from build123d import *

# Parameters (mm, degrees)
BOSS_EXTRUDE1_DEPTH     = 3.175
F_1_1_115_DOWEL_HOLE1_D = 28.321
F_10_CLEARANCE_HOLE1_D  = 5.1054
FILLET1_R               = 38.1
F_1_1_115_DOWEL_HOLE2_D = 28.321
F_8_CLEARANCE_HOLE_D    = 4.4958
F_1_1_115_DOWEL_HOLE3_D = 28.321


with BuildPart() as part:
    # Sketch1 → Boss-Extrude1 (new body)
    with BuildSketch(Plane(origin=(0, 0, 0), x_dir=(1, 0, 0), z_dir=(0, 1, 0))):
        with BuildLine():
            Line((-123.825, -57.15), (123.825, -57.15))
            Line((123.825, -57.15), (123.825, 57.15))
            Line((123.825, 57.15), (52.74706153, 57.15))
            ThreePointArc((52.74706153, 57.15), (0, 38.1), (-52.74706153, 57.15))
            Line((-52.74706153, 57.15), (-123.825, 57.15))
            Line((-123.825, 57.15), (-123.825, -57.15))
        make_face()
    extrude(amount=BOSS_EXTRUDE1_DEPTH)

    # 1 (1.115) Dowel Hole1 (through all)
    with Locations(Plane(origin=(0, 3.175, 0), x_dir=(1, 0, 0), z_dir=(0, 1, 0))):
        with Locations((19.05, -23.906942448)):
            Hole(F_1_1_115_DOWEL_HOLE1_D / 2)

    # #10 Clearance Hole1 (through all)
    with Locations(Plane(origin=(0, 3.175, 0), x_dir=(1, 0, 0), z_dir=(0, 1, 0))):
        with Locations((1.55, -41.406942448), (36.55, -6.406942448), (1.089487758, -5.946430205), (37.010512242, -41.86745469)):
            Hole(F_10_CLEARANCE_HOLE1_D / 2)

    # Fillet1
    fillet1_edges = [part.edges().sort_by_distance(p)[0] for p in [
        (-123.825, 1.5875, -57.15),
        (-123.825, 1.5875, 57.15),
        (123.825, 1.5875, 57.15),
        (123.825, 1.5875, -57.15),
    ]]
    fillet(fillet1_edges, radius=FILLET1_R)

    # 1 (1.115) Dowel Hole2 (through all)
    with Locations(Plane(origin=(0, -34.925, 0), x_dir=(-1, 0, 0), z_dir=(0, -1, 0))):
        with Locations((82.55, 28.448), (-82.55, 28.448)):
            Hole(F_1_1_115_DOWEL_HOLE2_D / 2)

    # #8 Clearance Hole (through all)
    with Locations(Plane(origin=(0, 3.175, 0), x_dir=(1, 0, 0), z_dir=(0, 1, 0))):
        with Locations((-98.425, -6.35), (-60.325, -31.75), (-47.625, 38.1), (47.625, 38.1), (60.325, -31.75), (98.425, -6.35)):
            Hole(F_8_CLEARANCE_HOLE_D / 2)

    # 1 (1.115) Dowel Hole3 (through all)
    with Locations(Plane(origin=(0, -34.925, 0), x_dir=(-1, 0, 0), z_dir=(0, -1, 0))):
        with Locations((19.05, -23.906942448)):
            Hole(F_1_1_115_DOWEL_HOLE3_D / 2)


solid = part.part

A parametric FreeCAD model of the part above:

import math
import FreeCAD as App
import Part
import Sketcher

V = App.Vector
Q = App.Units.Quantity


def edges_at(feature, points):
    """Names of the edges that pass closest to the given points."""
    edges = feature.Shape.Edges
    near = lambda p: min(range(len(edges)), key=lambda i: edges[i].distToShape(Part.Vertex(*p))[0])
    return sorted({f"Edge{near(p) + 1}" for p in points})

doc = App.newDocument("Part")
body = doc.addObject("PartDesign::Body", "Body")

# Sketch on XZ plane
sketch1 = doc.addObject("Sketcher::SketchObject", "Sketch")
body.addObject(sketch1)
sketch1.AttachmentSupport = (doc.XZ_Plane, [""])
sketch1.MapMode = "FlatFace"
sketch1.addGeometry([
    Part.LineSegment(V(-124, 57, 0), V(124, 57, 0)),  # 0
    Part.LineSegment(V(124, 57, 0), V(124, -57, 0)),  # 1
    Part.LineSegment(V(124, -57, 0), V(53, -57, 0)),  # 2
    Part.ArcOfCircle(Part.Circle(V(0, -121, 0), V(0, 0, 1), 83), math.radians(50), math.radians(130)),  # 3
    Part.LineSegment(V(-53, -57, 0), V(-124, -57, 0)),  # 4
    Part.LineSegment(V(-124, -57, 0), V(-124, 57, 0)),  # 5
], False)
sketch1.addConstraint([
    Sketcher.Constraint("Coincident", 0, 2, 1, 1),
    Sketcher.Constraint("Coincident", 1, 2, 2, 1),
    Sketcher.Constraint("Coincident", 2, 2, 3, 1),
    Sketcher.Constraint("Coincident", 3, 2, 4, 1),
    Sketcher.Constraint("Coincident", 4, 2, 5, 1),
    Sketcher.Constraint("Coincident", 5, 2, 0, 1),
    Sketcher.Constraint("Horizontal", 0),
    Sketcher.Constraint("Vertical", 1),
    Sketcher.Constraint("Horizontal", 2),
    Sketcher.Constraint("Horizontal", 4),
    Sketcher.Constraint("Vertical", 5),
    Sketcher.Constraint("Symmetric", 0, 2, 4, 2, -1, 1),
    Sketcher.Constraint("Symmetric", 2, 2, 3, 2, -2),
    Sketcher.Constraint("Radius", 3, Q("3.25 in")),
    Sketcher.Constraint("DistanceY", 1, 2, 1, 1, Q("4.5 in")),
    Sketcher.Constraint("DistanceY", 3, 3, 0, 2, Q("7 in")),
    Sketcher.Constraint("DistanceX", 0, 1, 0, 2, Q("9.75 in")),
])
pad1 = doc.addObject("PartDesign::Pad", "Pad")
body.addObject(pad1)
pad1.Profile = sketch1
pad1.Length = Q("0.125 in")
pad1.Reversed = True

# Sketch on XZ plane
sketch2 = doc.addObject("Sketcher::SketchObject", "Sketch001")
body.addObject(sketch2)
sketch2.AttachmentSupport = (doc.XZ_Plane, [""])
sketch2.MapMode = "FlatFace"
sketch2.AttachmentOffset = App.Placement(V(0, 0, -0.125 * 25.4), App.Rotation())
sketch2.addGeometry(Part.Circle(V(19, 24, 0), V(0, 0, 1), 14), False)
sketch2.addConstraint([
    Sketcher.Constraint("Diameter", 0, Q("1.115 in")),
    Sketcher.Constraint("DistanceX", -1, 1, 0, 3, Q("0.75 in")),
    Sketcher.Constraint("DistanceY", -1, 1, 0, 3, 23.906942),
])
doc.recompute()
hole = doc.addObject("PartDesign::Hole", "Hole")
body.addObject(hole)
hole.Profile = sketch2
hole.ThreadType = "None"
hole.Diameter = Q("1.115 in")
hole.DepthType = "ThroughAll"
hole.Reversed = True

# Sketch on XZ plane
sketch3 = doc.addObject("Sketcher::SketchObject", "Sketch002")
body.addObject(sketch3)
sketch3.AttachmentSupport = (doc.XZ_Plane, [""])
sketch3.MapMode = "FlatFace"
sketch3.AttachmentOffset = App.Placement(V(0, 0, -0.125 * 25.4), App.Rotation())
sketch3.addGeometry([
    Part.Circle(V(1.6, 41.4, 0), V(0, 0, 1), 2.6),
    Part.Circle(V(36.5, 6.4, 0), V(0, 0, 1), 2.6),
    Part.Circle(V(1.1, 5.9, 0), V(0, 0, 1), 2.6),
    Part.Circle(V(37, 41.9, 0), V(0, 0, 1), 2.6),
], False)
sketch3.addConstraint([
    Sketcher.Constraint("Equal", 0, 1),
    Sketcher.Constraint("Equal", 1, 2),
    Sketcher.Constraint("Equal", 2, 3),
    Sketcher.Constraint("Diameter", 0, Q("0.201 in")),
    Sketcher.Constraint("DistanceX", -1, 1, 0, 3, 1.55),
    Sketcher.Constraint("DistanceX", -1, 1, 1, 3, 36.55),
    Sketcher.Constraint("DistanceY", 1, 3, 0, 3, 35.0),
    Sketcher.Constraint("DistanceY", -1, 1, 2, 3, 5.94643),
    Sketcher.Constraint("DistanceY", -1, 1, 0, 3, 41.406942),
    Sketcher.Constraint("DistanceX", -1, 1, 2, 3, 1.089488),
    Sketcher.Constraint("DistanceX", -1, 1, 3, 3, 37.010512),
    Sketcher.Constraint("DistanceY", -1, 1, 3, 3, 41.867455),
])
doc.recompute()
hole2 = doc.addObject("PartDesign::Hole", "Hole001")
body.addObject(hole2)
hole2.Profile = sketch3
hole2.ThreadType = "None"
hole2.Diameter = Q("0.201 in")
hole2.DepthType = "ThroughAll"
hole2.Reversed = True
doc.recompute()

fillet = doc.addObject("PartDesign::Fillet", "Fillet")
body.addObject(fillet)
fillet.Base = (hole2, edges_at(hole2, [
    (-123.825, 1.587, -57.15),
    (-123.825, 1.587, 57.15),
    (123.825, 1.587, 57.15),
    (123.825, 1.587, -57.15),
]))
fillet.Radius = Q("1.5 in")

# Sketch on XZ plane
sketch4 = doc.addObject("Sketcher::SketchObject", "Sketch003")
body.addObject(sketch4)
sketch4.AttachmentSupport = (doc.XZ_Plane, [""])
sketch4.MapMode = "FlatFace"
sketch4.AttachmentOffset = App.Placement(V(0, 0, 1.375 * 25.4), App.Rotation())
sketch4.addGeometry([
    Part.Circle(V(-83, -28, 0), V(0, 0, 1), 14),
    Part.Circle(V(83, -28, 0), V(0, 0, 1), 14),
], False)
sketch4.addConstraint([
    Sketcher.Constraint("Equal", 0, 1),
    Sketcher.Constraint("Symmetric", 0, 3, 1, 3, -2),
    Sketcher.Constraint("Diameter", 0, Q("1.115 in")),
    Sketcher.Constraint("DistanceX", 0, 3, 1, 3, Q("6.5 in")),
    Sketcher.Constraint("DistanceY", 0, 3, -1, 1, Q("1.12 in")),
])
doc.recompute()
hole3 = doc.addObject("PartDesign::Hole", "Hole002")
body.addObject(hole3)
hole3.Profile = sketch4
hole3.ThreadType = "None"
hole3.Diameter = Q("1.115 in")
hole3.DepthType = "ThroughAll"

# Sketch on XZ plane
sketch5 = doc.addObject("Sketcher::SketchObject", "Sketch004")
body.addObject(sketch5)
sketch5.AttachmentSupport = (doc.XZ_Plane, [""])
sketch5.MapMode = "FlatFace"
sketch5.AttachmentOffset = App.Placement(V(0, 0, -0.125 * 25.4), App.Rotation())
sketch5.addGeometry([
    Part.Circle(V(-98.4, 6.3, 0), V(0, 0, 1), 2.2),  # 0
    Part.Circle(V(-60.3, 31.8, 0), V(0, 0, 1), 2.2),  # 1
    Part.Circle(V(-47.6, -38.1, 0), V(0, 0, 1), 2.2),  # 2
    Part.Circle(V(47.6, -38.1, 0), V(0, 0, 1), 2.2),  # 3
    Part.Circle(V(60.3, 31.8, 0), V(0, 0, 1), 2.2),  # 4
    Part.Circle(V(98.4, 6.3, 0), V(0, 0, 1), 2.2),  # 5
], False)
sketch5.addConstraint([
    Sketcher.Constraint("Equal", 0, 1),
    Sketcher.Constraint("Equal", 1, 2),
    Sketcher.Constraint("Equal", 2, 3),
    Sketcher.Constraint("Equal", 3, 4),
    Sketcher.Constraint("Equal", 4, 5),
    Sketcher.Constraint("Symmetric", 2, 3, 3, 3, -2),
    Sketcher.Constraint("Symmetric", 1, 3, 4, 3, -2),
    Sketcher.Constraint("Symmetric", 0, 3, 5, 3, -2),
    Sketcher.Constraint("Diameter", 0, Q("0.177 in")),
    Sketcher.Constraint("DistanceY", 0, 3, 1, 3, Q("1 in")),
    Sketcher.Constraint("DistanceX", 0, 3, 2, 3, Q("2 in")),
    Sketcher.Constraint("DistanceY", 2, 3, -1, 1, Q("1.5 in")),
    Sketcher.Constraint("DistanceX", 0, 3, 1, 3, Q("1.5 in")),
    Sketcher.Constraint("DistanceY", -1, 1, 0, 3, Q("0.25 in")),
    Sketcher.Constraint("DistanceX", 2, 3, 3, 3, Q("3.75 in")),
])
doc.recompute()
hole4 = doc.addObject("PartDesign::Hole", "Hole003")
body.addObject(hole4)
hole4.Profile = sketch5
hole4.ThreadType = "None"
hole4.Diameter = Q("0.177 in")
hole4.DepthType = "ThroughAll"
hole4.Reversed = True

# Sketch on XZ plane
sketch6 = doc.addObject("Sketcher::SketchObject", "Sketch005")
body.addObject(sketch6)
sketch6.AttachmentSupport = (doc.XZ_Plane, [""])
sketch6.MapMode = "FlatFace"
sketch6.AttachmentOffset = App.Placement(V(0, 0, 1.375 * 25.4), App.Rotation())
sketch6.addGeometry(Part.Circle(V(-19, 24, 0), V(0, 0, 1), 14), False)
sketch6.addConstraint([
    Sketcher.Constraint("Diameter", 0, Q("1.115 in")),
    Sketcher.Constraint("DistanceX", 0, 3, -1, 1, Q("0.75 in")),
    Sketcher.Constraint("DistanceY", -1, 1, 0, 3, 23.906942),
])
doc.recompute()
hole5 = doc.addObject("PartDesign::Hole", "Hole004")
body.addObject(hole5)
hole5.Profile = sketch6
hole5.ThreadType = "None"
hole5.Diameter = Q("1.115 in")
hole5.DepthType = "ThroughAll"

doc.recompute()
